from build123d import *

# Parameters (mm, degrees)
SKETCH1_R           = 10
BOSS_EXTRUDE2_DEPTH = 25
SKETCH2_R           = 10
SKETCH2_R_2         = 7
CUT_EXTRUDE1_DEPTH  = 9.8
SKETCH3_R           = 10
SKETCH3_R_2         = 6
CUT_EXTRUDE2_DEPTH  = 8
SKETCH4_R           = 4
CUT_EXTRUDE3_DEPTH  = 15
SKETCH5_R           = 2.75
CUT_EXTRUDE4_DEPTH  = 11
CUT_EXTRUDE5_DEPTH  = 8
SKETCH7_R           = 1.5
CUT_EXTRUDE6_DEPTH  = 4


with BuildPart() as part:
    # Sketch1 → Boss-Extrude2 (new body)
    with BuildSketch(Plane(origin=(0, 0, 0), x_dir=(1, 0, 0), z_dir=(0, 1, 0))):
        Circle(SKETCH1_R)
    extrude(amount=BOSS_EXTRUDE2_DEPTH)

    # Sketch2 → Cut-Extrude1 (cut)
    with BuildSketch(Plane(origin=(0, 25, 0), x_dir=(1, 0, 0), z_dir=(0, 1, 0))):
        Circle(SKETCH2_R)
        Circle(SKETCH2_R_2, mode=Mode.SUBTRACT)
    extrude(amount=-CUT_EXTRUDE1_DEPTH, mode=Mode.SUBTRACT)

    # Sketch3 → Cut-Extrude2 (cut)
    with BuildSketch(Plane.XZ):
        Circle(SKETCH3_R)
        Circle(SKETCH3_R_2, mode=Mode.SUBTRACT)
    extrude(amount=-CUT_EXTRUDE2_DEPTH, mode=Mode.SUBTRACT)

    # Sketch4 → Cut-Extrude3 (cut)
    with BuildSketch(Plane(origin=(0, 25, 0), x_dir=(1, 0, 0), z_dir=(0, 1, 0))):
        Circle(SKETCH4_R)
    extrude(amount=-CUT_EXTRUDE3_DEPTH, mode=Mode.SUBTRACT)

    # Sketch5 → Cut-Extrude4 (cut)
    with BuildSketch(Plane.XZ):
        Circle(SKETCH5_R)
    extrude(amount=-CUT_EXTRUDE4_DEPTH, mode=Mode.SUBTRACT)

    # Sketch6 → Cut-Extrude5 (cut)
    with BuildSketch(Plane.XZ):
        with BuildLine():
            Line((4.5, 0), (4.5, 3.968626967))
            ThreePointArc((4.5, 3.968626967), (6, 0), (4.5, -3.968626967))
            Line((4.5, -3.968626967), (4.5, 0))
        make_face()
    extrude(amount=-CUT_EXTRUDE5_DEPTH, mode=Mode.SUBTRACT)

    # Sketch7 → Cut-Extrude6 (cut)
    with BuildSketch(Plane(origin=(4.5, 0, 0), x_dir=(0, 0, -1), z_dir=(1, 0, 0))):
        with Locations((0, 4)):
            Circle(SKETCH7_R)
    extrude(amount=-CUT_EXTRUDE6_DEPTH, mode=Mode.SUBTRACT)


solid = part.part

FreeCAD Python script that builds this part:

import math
import FreeCAD as App
import Part
import Sketcher
from FreeCAD import Vector

doc = App.newDocument("Part")
body = doc.addObject("PartDesign::Body", "Body")

# Sketch on XZ plane
sketch1 = body.newObject("Sketcher::SketchObject", "Sketch")
sketch1.AttachmentSupport = (doc.getObject("XZ_Plane"), [""])
sketch1.MapMode = "FlatFace"
sketch1.addGeometry(Part.Circle(Vector(0, 0, 0), Vector(0, 0, 1), 10), False)
sketch1.addConstraint(Sketcher.Constraint("Coincident", 0, 3, -1, 1))
sketch1.addConstraint(Sketcher.Constraint("Diameter", 0, 20.0))
pad1 = body.newObject("PartDesign::Pad", "Pad")
pad1.Profile = sketch1
pad1.Length = 25
pad1.Reversed = True

# Sketch on XZ plane
sketch2 = body.newObject("Sketcher::SketchObject", "Sketch001")
sketch2.AttachmentSupport = (doc.getObject("XZ_Plane"), [""])
sketch2.MapMode = "FlatFace"
sketch2.AttachmentOffset = App.Placement(Vector(0, 0, -25), App.Rotation())
sketch2.addGeometry(Part.Circle(Vector(0, 0, 0), Vector(0, 0, 1), 10), False)
sketch2.addGeometry(Part.Circle(Vector(0, 0, 0), Vector(0, 0, 1), 7), False)
sketch2.addConstraint(Sketcher.Constraint("Coincident", 0, 3, -1, 1))
sketch2.addConstraint(Sketcher.Constraint("Coincident", 1, 3, -1, 1))
sketch2.addConstraint(Sketcher.Constraint("Diameter", 0, 20.0))
sketch2.addConstraint(Sketcher.Constraint("Diameter", 1, 14.0))
pocket1 = body.newObject("PartDesign::Pocket", "Pocket")
pocket1.Profile = sketch2
pocket1.Length = 9.8
pocket1.Reversed = True

# Sketch on XZ plane
sketch3 = body.newObject("Sketcher::SketchObject", "Sketch002")
sketch3.AttachmentSupport = (doc.getObject("XZ_Plane"), [""])
sketch3.MapMode = "FlatFace"
sketch3.addGeometry(Part.Circle(Vector(0, 0, 0), Vector(0, 0, 1), 10), False)
sketch3.addGeometry(Part.Circle(Vector(0, 0, 0), Vector(0, 0, 1), 6), False)
sketch3.addConstraint(Sketcher.Constraint("Coincident", 0, 3, -1, 1))
sketch3.addConstraint(Sketcher.Constraint("Coincident", 1, 3, -1, 1))
sketch3.addConstraint(Sketcher.Constraint("Diameter", 0, 20.0))
sketch3.addConstraint(Sketcher.Constraint("Diameter", 1, 12.0))
pocket2 = body.newObject("PartDesign::Pocket", "Pocket001")
pocket2.Profile = sketch3
pocket2.Length = 8

# Sketch on XZ plane
sketch4 = body.newObject("Sketcher::SketchObject", "Sketch003")
sketch4.AttachmentSupport = (doc.getObject("XZ_Plane"), [""])
sketch4.MapMode = "FlatFace"
sketch4.AttachmentOffset = App.Placement(Vector(0, 0, -25), App.Rotation())
sketch4.addGeometry(Part.Circle(Vector(0, 0, 0), Vector(0, 0, 1), 4), False)
sketch4.addConstraint(Sketcher.Constraint("Coincident", 0, 3, -1, 1))
sketch4.addConstraint(Sketcher.Constraint("Diameter", 0, 8.0))
pocket3 = body.newObject("PartDesign::Pocket", "Pocket002")
pocket3.Profile = sketch4
pocket3.Length = 15
pocket3.Reversed = True

# Sketch on XZ plane
sketch5 = body.newObject("Sketcher::SketchObject", "Sketch004")
sketch5.AttachmentSupport = (doc.getObject("XZ_Plane"), [""])
sketch5.MapMode = "FlatFace"
sketch5.addGeometry(Part.Circle(Vector(0, 0, 0), Vector(0, 0, 1), 2.8), False)
sketch5.addConstraint(Sketcher.Constraint("Coincident", 0, 3, -1, 1))
sketch5.addConstraint(Sketcher.Constraint("Diameter", 0, 5.5))
pocket4 = body.newObject("PartDesign::Pocket", "Pocket003")
pocket4.Profile = sketch5
pocket4.Length = 11

# Sketch on XZ plane
sketch6 = body.newObject("Sketcher::SketchObject", "Sketch005")
sketch6.AttachmentSupport = (doc.getObject("XZ_Plane"), [""])
sketch6.MapMode = "FlatFace"
sketch6.addGeometry(Part.ArcOfCircle(Part.Circle(Vector(0, 0, 0), Vector(0, 0, 1), 6), math.radians(-41), math.radians(41)), False)
sketch6.addGeometry(Part.LineSegment(Vector(4, 4, 0), Vector(4, -4, 0)), False)
sketch6.addConstraint(Sketcher.Constraint("Coincident", 0, 1, 1, 2))
sketch6.addConstraint(Sketcher.Constraint("Coincident", 1, 1, 0, 2))
sketch6.addConstraint(Sketcher.Constraint("Vertical", 1))
sketch6.addConstraint(Sketcher.Constraint("Coincident", 0, 3, -1, 1))
sketch6.addConstraint(Sketcher.Constraint("Radius", 0, 6.0))
sketch6.addConstraint(Sketcher.Constraint("DistanceX", -1, 1, 0, 1, 4.5))
pocket5 = body.newObject("PartDesign::Pocket", "Pocket004")
pocket5.Profile = sketch6
pocket5.Length = 8

# Sketch on YZ plane
sketch7 = body.newObject("Sketcher::SketchObject", "Sketch006")
sketch7.AttachmentSupport = (doc.getObject("YZ_Plane"), [""])
sketch7.MapMode = "FlatFace"
sketch7.AttachmentOffset = App.Placement(Vector(0, 0, 4.5), App.Rotation())
sketch7.addGeometry(Part.Circle(Vector(4, 0, 0), Vector(0, 0, 1), 1.5), False)
sketch7.addConstraint(Sketcher.Constraint("PointOnObject", 0, 3, -1))
sketch7.addConstraint(Sketcher.Constraint("Diameter", 0, 3.0))
sketch7.addConstraint(Sketcher.Constraint("DistanceX", -1, 1, 0, 3, 4.0))
pocket6 = body.newObject("PartDesign::Pocket", "Pocket005")
pocket6.Profile = sketch7
pocket6.Length = 4

doc.recompute()
